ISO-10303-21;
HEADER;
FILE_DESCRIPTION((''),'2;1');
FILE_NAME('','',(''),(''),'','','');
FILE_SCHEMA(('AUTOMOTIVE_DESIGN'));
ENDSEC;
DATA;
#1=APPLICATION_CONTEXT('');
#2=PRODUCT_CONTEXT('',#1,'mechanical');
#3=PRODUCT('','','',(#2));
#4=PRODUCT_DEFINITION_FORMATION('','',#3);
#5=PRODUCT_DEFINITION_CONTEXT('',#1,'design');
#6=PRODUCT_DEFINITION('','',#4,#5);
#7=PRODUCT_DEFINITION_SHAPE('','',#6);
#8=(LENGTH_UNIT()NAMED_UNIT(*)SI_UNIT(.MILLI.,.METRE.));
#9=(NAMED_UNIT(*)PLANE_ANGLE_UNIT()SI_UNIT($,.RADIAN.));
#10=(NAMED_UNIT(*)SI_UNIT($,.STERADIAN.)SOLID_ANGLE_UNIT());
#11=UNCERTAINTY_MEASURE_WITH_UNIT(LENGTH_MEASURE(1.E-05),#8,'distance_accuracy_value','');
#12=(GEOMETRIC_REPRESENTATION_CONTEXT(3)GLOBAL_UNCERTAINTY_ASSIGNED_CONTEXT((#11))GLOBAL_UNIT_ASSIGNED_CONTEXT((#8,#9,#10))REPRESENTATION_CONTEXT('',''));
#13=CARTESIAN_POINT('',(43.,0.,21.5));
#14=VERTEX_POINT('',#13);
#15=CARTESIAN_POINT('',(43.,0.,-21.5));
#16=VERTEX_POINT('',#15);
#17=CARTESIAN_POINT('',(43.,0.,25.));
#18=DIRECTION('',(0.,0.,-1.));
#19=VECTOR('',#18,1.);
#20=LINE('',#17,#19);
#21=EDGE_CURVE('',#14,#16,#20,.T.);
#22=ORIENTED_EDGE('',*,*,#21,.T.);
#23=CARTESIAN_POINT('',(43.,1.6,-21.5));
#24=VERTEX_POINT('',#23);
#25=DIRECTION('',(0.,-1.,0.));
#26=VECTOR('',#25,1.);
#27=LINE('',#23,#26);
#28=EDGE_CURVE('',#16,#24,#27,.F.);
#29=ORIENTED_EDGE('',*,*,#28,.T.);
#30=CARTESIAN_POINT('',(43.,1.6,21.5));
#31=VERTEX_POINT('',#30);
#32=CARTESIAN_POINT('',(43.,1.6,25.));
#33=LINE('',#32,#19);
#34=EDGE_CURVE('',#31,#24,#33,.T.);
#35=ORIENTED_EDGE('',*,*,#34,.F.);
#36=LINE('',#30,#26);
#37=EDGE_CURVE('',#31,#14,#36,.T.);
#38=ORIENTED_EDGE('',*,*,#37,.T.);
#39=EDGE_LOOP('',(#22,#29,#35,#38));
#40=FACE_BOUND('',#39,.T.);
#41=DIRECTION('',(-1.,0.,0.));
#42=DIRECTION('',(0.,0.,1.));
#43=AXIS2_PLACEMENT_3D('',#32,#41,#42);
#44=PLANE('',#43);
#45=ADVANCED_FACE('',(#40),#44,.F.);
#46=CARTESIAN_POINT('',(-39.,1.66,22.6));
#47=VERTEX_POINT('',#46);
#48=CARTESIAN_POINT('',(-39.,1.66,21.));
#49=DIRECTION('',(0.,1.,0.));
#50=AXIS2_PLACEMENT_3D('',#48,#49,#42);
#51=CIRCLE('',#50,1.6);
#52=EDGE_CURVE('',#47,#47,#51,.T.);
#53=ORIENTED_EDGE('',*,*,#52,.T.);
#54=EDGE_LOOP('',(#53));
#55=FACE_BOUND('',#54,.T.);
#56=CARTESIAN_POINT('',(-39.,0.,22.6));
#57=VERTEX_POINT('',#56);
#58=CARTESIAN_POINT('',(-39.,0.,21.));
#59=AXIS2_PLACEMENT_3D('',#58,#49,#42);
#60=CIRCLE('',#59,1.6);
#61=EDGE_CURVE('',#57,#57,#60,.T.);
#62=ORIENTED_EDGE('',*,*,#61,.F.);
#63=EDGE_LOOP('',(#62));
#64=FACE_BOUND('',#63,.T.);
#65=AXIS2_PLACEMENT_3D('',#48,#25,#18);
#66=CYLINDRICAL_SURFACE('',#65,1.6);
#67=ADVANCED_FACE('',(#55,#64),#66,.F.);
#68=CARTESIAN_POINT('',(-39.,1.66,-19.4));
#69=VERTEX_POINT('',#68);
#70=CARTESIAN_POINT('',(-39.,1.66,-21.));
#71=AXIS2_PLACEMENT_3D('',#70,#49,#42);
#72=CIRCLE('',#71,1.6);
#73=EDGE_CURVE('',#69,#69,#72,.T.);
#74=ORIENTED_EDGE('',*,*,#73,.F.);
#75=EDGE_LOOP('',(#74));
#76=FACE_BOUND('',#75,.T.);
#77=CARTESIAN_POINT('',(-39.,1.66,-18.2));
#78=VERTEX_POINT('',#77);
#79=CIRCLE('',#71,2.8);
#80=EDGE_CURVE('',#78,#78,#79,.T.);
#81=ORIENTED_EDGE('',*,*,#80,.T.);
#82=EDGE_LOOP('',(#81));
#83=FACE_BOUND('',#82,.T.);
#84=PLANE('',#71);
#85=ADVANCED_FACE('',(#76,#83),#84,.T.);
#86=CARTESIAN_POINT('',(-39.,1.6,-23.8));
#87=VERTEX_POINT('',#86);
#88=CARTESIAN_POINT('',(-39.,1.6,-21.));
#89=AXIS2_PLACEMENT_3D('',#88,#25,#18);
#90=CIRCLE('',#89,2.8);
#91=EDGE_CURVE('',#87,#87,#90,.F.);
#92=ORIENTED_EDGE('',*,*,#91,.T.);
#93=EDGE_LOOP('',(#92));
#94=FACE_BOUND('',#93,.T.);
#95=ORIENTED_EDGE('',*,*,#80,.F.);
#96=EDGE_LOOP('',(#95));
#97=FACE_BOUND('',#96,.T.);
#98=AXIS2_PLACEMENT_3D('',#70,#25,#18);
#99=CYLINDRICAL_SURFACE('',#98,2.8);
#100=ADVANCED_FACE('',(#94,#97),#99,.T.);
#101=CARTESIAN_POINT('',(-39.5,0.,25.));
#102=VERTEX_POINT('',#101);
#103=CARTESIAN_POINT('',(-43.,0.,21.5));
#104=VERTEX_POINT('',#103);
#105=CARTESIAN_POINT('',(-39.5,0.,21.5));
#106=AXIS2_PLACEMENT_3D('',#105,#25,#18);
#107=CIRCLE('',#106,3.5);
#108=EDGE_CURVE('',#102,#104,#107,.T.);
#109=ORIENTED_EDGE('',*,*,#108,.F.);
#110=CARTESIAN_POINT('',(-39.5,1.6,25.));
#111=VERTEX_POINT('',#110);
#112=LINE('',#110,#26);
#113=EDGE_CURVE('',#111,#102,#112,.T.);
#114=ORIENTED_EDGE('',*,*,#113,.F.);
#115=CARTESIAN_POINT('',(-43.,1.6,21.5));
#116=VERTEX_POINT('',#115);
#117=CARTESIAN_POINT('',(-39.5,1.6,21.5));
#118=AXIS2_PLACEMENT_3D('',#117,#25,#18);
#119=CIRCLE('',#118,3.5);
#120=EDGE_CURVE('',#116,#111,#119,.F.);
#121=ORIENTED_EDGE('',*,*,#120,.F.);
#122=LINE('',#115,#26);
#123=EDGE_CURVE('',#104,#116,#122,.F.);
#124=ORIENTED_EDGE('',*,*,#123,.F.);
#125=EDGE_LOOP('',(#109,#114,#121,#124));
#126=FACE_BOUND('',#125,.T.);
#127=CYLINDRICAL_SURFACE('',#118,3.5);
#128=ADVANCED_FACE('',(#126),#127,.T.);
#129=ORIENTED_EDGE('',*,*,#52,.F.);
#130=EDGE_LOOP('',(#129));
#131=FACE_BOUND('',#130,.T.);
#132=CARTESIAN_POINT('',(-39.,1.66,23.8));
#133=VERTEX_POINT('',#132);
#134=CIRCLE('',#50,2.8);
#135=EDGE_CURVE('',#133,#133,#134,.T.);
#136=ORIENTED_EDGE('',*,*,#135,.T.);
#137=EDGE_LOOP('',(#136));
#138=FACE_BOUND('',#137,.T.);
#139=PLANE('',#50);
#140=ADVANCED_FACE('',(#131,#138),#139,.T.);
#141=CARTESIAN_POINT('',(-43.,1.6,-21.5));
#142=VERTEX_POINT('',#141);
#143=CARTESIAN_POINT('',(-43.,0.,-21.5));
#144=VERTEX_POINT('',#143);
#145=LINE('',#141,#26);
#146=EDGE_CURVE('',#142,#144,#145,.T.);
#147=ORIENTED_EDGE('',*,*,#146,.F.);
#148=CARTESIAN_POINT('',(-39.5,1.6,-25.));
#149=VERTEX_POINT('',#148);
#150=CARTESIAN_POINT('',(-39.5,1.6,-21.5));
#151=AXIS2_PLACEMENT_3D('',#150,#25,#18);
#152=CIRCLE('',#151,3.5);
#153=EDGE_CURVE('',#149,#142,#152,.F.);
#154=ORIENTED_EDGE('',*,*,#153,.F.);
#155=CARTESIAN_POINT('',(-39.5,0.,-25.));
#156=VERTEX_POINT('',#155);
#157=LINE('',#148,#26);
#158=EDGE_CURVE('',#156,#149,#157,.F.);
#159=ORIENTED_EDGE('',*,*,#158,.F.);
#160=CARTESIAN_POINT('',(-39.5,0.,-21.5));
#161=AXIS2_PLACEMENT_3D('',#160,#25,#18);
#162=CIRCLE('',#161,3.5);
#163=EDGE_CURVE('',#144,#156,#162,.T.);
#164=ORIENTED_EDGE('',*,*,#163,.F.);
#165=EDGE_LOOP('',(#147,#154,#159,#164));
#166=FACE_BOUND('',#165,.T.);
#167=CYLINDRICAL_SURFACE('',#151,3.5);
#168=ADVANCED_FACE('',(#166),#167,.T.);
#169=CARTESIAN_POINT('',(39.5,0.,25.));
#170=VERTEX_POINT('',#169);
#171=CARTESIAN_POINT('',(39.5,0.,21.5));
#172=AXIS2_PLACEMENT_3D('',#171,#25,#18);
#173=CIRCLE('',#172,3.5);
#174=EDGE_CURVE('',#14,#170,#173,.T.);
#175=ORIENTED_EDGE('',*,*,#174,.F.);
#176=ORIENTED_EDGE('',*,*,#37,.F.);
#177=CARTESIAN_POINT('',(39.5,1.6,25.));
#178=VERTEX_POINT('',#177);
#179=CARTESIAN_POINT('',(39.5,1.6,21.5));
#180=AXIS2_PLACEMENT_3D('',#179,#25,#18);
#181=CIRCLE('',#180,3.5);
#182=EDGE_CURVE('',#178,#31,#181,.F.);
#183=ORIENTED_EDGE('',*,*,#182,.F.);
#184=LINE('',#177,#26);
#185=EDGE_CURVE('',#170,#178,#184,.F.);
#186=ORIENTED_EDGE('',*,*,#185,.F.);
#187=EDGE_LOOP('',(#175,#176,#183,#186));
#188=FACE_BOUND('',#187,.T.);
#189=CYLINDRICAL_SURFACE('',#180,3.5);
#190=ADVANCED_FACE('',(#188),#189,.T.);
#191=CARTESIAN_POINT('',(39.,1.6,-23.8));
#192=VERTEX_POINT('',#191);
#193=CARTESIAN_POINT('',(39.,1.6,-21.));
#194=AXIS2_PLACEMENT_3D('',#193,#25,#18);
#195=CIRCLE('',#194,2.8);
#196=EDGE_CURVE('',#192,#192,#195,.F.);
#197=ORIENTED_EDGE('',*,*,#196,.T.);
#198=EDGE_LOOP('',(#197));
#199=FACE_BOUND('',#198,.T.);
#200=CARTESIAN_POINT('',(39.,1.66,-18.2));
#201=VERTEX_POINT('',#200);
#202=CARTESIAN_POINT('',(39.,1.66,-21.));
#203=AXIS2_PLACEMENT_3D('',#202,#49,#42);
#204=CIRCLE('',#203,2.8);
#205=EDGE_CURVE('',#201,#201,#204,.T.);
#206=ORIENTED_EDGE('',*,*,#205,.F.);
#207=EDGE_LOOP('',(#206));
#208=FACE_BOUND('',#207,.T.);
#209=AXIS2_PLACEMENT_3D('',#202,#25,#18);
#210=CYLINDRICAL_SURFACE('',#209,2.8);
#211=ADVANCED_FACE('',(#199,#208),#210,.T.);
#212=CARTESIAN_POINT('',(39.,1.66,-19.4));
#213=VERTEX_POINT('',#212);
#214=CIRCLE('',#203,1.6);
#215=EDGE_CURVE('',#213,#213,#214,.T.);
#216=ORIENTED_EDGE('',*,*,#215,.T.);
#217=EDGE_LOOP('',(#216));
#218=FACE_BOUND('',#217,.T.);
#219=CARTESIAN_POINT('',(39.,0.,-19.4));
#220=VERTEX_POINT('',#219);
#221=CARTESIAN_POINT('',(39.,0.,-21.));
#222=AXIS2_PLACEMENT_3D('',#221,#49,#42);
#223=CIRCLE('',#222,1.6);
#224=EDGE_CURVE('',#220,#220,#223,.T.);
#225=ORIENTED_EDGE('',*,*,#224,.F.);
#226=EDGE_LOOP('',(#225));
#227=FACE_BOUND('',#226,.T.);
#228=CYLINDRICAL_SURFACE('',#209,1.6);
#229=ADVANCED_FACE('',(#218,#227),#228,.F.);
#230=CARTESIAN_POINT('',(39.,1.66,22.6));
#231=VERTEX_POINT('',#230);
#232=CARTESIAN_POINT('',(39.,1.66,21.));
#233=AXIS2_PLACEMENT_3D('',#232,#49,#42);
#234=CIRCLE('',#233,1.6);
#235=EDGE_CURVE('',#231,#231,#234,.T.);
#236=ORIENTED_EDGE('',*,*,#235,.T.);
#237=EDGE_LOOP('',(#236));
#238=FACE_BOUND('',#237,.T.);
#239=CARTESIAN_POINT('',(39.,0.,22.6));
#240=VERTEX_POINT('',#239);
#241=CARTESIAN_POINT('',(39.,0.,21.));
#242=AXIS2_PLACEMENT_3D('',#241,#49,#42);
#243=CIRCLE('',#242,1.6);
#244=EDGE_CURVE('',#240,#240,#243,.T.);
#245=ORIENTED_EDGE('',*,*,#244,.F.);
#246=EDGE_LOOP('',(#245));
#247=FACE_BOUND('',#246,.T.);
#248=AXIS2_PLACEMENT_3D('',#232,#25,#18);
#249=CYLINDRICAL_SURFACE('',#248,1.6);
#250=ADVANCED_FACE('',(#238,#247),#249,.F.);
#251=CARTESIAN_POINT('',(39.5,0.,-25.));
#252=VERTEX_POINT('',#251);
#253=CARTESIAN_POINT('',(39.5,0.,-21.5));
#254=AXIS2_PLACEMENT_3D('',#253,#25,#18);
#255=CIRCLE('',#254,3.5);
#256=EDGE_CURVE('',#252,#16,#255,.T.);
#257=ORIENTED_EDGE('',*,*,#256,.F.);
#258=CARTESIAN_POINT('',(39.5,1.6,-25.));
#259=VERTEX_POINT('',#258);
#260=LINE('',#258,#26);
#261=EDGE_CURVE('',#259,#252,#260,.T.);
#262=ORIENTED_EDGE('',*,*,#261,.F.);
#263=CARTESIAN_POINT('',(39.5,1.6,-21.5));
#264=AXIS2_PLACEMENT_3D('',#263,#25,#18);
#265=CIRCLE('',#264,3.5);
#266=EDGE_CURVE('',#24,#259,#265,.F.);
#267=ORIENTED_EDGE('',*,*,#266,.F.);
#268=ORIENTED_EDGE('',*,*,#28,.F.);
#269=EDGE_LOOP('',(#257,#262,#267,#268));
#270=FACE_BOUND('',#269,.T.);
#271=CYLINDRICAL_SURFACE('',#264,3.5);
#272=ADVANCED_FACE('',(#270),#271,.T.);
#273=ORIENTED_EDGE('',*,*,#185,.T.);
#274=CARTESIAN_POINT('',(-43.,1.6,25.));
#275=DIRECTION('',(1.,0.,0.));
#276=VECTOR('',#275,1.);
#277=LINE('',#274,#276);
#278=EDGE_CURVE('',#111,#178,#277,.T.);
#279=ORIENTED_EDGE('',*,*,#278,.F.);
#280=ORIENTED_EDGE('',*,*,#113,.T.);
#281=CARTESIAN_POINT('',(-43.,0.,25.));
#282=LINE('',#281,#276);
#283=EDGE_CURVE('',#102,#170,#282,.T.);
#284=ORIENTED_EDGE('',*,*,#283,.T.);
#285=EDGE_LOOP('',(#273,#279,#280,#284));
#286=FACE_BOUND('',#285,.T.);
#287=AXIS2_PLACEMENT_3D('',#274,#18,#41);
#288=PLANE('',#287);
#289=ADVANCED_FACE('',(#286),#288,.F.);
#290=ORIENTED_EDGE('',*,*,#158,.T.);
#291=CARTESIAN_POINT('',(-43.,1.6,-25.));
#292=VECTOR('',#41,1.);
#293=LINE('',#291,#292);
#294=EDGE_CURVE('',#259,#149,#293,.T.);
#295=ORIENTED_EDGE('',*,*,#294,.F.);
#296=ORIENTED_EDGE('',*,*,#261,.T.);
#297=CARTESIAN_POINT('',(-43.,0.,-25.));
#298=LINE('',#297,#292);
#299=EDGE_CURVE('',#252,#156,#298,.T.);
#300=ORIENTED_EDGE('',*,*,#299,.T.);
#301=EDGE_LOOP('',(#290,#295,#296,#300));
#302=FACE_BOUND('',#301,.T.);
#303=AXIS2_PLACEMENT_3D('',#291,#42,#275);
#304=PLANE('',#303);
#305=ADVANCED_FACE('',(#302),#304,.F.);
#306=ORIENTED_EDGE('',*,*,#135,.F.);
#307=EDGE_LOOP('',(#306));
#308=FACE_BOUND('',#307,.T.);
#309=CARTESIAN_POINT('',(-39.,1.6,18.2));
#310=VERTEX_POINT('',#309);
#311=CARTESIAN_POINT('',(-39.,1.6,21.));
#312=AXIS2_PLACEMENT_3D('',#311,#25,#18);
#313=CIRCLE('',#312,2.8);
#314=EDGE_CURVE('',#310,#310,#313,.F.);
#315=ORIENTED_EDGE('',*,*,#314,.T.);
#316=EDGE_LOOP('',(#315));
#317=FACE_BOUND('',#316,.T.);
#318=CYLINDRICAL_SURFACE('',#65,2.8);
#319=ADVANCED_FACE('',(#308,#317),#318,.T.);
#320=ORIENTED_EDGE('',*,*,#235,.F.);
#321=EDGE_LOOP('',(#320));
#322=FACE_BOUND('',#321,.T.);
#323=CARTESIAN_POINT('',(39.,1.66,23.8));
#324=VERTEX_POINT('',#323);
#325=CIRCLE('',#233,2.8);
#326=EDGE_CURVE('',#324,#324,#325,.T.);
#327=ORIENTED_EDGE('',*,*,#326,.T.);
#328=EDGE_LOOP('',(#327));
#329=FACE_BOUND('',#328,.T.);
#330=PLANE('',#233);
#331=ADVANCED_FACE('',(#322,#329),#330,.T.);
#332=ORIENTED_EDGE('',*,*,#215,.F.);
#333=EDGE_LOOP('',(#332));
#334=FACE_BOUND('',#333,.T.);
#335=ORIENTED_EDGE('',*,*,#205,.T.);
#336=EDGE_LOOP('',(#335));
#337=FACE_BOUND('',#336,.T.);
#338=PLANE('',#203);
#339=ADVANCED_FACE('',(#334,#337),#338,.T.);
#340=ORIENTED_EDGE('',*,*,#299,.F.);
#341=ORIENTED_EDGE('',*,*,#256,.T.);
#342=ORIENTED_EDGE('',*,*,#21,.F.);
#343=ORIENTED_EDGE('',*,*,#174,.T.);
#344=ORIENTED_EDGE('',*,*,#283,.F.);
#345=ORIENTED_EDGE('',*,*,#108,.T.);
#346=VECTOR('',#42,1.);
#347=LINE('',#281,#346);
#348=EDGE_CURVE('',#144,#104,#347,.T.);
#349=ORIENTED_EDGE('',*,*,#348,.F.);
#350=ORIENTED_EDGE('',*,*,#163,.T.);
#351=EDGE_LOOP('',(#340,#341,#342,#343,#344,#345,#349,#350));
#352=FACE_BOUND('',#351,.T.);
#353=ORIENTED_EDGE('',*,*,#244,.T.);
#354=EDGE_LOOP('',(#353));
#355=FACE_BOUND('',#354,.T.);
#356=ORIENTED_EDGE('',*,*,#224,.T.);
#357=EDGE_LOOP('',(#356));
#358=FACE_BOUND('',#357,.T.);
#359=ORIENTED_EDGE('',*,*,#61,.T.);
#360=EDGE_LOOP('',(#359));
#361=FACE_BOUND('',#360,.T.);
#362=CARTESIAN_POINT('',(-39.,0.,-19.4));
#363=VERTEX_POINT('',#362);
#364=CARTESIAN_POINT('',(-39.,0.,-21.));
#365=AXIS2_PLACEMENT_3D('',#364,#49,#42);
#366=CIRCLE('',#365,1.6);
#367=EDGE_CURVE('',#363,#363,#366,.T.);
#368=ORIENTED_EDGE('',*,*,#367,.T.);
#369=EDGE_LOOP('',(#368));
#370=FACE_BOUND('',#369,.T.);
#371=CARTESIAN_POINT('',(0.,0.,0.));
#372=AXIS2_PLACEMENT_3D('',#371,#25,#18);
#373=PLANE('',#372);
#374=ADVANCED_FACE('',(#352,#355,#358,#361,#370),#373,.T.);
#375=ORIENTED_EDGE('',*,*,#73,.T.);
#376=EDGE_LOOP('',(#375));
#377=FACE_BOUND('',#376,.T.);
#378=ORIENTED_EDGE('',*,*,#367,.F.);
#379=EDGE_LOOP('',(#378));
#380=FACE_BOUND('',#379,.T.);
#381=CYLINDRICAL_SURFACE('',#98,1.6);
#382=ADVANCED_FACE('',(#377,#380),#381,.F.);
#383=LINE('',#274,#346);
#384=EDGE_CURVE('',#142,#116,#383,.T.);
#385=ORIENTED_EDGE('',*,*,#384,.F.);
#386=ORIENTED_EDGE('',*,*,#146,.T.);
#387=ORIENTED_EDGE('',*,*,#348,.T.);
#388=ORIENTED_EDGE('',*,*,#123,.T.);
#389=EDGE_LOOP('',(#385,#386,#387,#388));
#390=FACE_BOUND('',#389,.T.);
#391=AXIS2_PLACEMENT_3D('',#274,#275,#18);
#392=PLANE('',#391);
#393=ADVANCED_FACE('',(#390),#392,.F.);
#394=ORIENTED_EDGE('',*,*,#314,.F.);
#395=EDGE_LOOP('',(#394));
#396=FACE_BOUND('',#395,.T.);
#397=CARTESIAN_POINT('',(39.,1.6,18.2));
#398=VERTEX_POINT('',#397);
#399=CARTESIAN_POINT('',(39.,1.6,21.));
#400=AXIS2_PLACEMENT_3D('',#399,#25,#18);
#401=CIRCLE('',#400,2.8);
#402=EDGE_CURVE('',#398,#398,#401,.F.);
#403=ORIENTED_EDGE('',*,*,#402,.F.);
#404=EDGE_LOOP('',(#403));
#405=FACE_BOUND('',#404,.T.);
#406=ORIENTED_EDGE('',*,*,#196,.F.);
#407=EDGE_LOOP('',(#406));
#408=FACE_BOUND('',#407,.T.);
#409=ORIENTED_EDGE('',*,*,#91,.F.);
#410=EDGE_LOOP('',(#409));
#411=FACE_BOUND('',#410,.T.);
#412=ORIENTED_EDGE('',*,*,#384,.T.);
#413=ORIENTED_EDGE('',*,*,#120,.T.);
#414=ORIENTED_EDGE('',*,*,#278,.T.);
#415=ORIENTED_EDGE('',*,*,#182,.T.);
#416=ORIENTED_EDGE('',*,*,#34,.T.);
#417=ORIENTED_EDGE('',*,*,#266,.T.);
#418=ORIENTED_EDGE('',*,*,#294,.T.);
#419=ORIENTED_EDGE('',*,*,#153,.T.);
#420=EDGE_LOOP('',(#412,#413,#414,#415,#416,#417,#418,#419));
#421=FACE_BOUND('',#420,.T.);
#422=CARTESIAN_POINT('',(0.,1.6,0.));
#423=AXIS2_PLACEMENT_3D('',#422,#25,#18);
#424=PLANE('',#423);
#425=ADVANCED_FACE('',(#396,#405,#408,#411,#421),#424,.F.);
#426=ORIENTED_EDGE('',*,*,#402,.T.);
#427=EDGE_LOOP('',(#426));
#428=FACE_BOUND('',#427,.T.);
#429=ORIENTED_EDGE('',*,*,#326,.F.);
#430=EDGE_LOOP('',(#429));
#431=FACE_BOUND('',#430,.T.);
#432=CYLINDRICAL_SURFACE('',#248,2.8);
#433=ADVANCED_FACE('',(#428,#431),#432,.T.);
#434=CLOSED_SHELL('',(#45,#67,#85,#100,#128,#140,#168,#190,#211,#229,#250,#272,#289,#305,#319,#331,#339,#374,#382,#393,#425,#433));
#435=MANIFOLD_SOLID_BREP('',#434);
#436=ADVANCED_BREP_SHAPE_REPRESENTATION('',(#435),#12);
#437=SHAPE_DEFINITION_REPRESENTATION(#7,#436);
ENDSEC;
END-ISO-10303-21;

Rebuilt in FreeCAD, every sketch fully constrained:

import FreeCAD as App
import Part
import Sketcher
Q = App.Units.Quantity


def edges_at(feature, points):
    """Names of the edges that pass closest to the given points."""
    edges = feature.Shape.Edges
    near = lambda p: min(range(len(edges)), key=lambda i: edges[i].distToShape(Part.Vertex(*p))[0])
    return sorted({f"Edge{near(p) + 1}" for p in points})

doc = App.newDocument("Part")
body = doc.addObject("PartDesign::Body", "Body")

# Sketch on XZ plane
sketch1 = body.newObject("Sketcher::SketchObject", "Sketch")
sketch1.AttachmentSupport = (doc.getObject("XZ_Plane"), [""])
sketch1.MapMode = "FlatFace"
sketch1.addGeometry(Part.LineSegment(App.Vector(-43, -25, 0), App.Vector(-43, 25, 0)), False)
sketch1.addGeometry(Part.LineSegment(App.Vector(-43, 25, 0), App.Vector(43, 25, 0)), False)
sketch1.addGeometry(Part.LineSegment(App.Vector(43, 25, 0), App.Vector(43, -25, 0)), False)
sketch1.addGeometry(Part.LineSegment(App.Vector(43, -25, 0), App.Vector(-43, -25, 0)), False)
sketch1.addConstraint(Sketcher.Constraint("Coincident", 0, 2, 1, 1))
sketch1.addConstraint(Sketcher.Constraint("Coincident", 1, 2, 2, 1))
sketch1.addConstraint(Sketcher.Constraint("Coincident", 2, 2, 3, 1))
sketch1.addConstraint(Sketcher.Constraint("Coincident", 3, 2, 0, 1))
sketch1.addConstraint(Sketcher.Constraint("Vertical", 0))
sketch1.addConstraint(Sketcher.Constraint("Horizontal", 1))
sketch1.addConstraint(Sketcher.Constraint("Vertical", 2))
sketch1.addConstraint(Sketcher.Constraint("Horizontal", 3))
sketch1.addConstraint(Sketcher.Constraint("Symmetric", 0, 2, 2, 2, -1, 1))
sketch1.addConstraint(Sketcher.Constraint("DistanceX", 1, 1, 1, 2, Q("86 mm")))
sketch1.addConstraint(Sketcher.Constraint("DistanceY", 0, 1, 0, 2, Q("50 mm")))
pad1 = body.newObject("PartDesign::Pad", "Pad")
pad1.Profile = sketch1
pad1.Length = 1.6
pad1.Reversed = True

# Sketch on XZ plane
sketch2 = body.newObject("Sketcher::SketchObject", "Sketch001")
sketch2.AttachmentSupport = (doc.getObject("XZ_Plane"), [""])
sketch2.MapMode = "FlatFace"
sketch2.AttachmentOffset = App.Placement(App.Vector(0, 0, -1.6), App.Rotation())
sketch2.addGeometry(Part.Circle(App.Vector(-39, -21, 0), App.Vector(0, 0, 1), 2.8), False)
sketch2.addGeometry(Part.Circle(App.Vector(-39, -21, 0), App.Vector(0, 0, 1), 1.6), False)
sketch2.addGeometry(Part.Circle(App.Vector(39, -21, 0), App.Vector(0, 0, 1), 2.8), False)
sketch2.addGeometry(Part.Circle(App.Vector(39, -21, 0), App.Vector(0, 0, 1), 1.6), False)
sketch2.addGeometry(Part.Circle(App.Vector(39, 21, 0), App.Vector(0, 0, 1), 2.8), False)
sketch2.addGeometry(Part.Circle(App.Vector(39, 21, 0), App.Vector(0, 0, 1), 1.6), False)
sketch2.addGeometry(Part.Circle(App.Vector(-39, 21, 0), App.Vector(0, 0, 1), 2.8), False)
sketch2.addGeometry(Part.Circle(App.Vector(-39, 21, 0), App.Vector(0, 0, 1), 1.6), False)
sketch2.addConstraint(Sketcher.Constraint("Coincident", 1, 3, 0, 3))
sketch2.addConstraint(Sketcher.Constraint("Coincident", 3, 3, 2, 3))
sketch2.addConstraint(Sketcher.Constraint("Coincident", 5, 3, 4, 3))
sketch2.addConstraint(Sketcher.Constraint("Coincident", 7, 3, 6, 3))
sketch2.addConstraint(Sketcher.Constraint("Equal", 0, 2))
sketch2.addConstraint(Sketcher.Constraint("Equal", 1, 3))
sketch2.addConstraint(Sketcher.Constraint("Equal", 2, 4))
sketch2.addConstraint(Sketcher.Constraint("Equal", 3, 5))
sketch2.addConstraint(Sketcher.Constraint("Equal", 4, 6))
sketch2.addConstraint(Sketcher.Constraint("Equal", 5, 7))
sketch2.addConstraint(Sketcher.Constraint("Symmetric", 0, 3, 4, 3, -1, 1))
sketch2.addConstraint(Sketcher.Constraint("Symmetric", 2, 3, 6, 3, -1, 1))
sketch2.addConstraint(Sketcher.Constraint("Symmetric", 0, 3, 2, 3, -2))
sketch2.addConstraint(Sketcher.Constraint("Diameter", 0, Q("5.6 mm")))
sketch2.addConstraint(Sketcher.Constraint("Diameter", 1, Q("3.2 mm")))
sketch2.addConstraint(Sketcher.Constraint("DistanceX", 0, 3, -1, 1, Q("39 mm")))
sketch2.addConstraint(Sketcher.Constraint("DistanceY", 0, 3, -1, 1, Q("21 mm")))
pad2 = body.newObject("PartDesign::Pad", "Pad001")
pad2.Profile = sketch2
pad2.Length = 0.06
pad2.Reversed = True

# Sketch on XZ plane
sketch3 = body.newObject("Sketcher::SketchObject", "Sketch002")
sketch3.AttachmentSupport = (doc.getObject("XZ_Plane"), [""])
sketch3.MapMode = "FlatFace"
sketch3.AttachmentOffset = App.Placement(App.Vector(0, 0, -1.6), App.Rotation())
sketch3.addGeometry(Part.Circle(App.Vector(-39, -21, 0), App.Vector(0, 0, 1), 1.6), False)
sketch3.addGeometry(Part.Circle(App.Vector(39, -21, 0), App.Vector(0, 0, 1), 1.6), False)
sketch3.addGeometry(Part.Circle(App.Vector(39, 21, 0), App.Vector(0, 0, 1), 1.6), False)
sketch3.addGeometry(Part.Circle(App.Vector(-39, 21, 0), App.Vector(0, 0, 1), 1.6), False)
sketch3.addConstraint(Sketcher.Constraint("Equal", 0, 1))
sketch3.addConstraint(Sketcher.Constraint("Equal", 1, 2))
sketch3.addConstraint(Sketcher.Constraint("Equal", 2, 3))
sketch3.addConstraint(Sketcher.Constraint("Symmetric", 0, 3, 2, 3, -1, 1))
sketch3.addConstraint(Sketcher.Constraint("Symmetric", 1, 3, 3, 3, -1, 1))
sketch3.addConstraint(Sketcher.Constraint("Symmetric", 0, 3, 1, 3, -2))
sketch3.addConstraint(Sketcher.Constraint("Diameter", 0, Q("3.2 mm")))
sketch3.addConstraint(Sketcher.Constraint("DistanceX", 0, 3, -1, 1, Q("39 mm")))
sketch3.addConstraint(Sketcher.Constraint("DistanceY", 0, 3, -1, 1, Q("21 mm")))
pocket1 = body.newObject("PartDesign::Pocket", "Pocket")
pocket1.Profile = sketch3
pocket1.Type = "ThroughAll"
pocket1.Reversed = True
doc.recompute()

fillet = body.newObject("PartDesign::Fillet", "Fillet")
fillet.Base = (pocket1, edges_at(pocket1, [
    (43, 0.8, 25),
    (-43, 0.8, 25),
    (-43, 0.8, -25),
    (43, 0.8, -25),
]))
fillet.Radius = 3.5

doc.recompute()
